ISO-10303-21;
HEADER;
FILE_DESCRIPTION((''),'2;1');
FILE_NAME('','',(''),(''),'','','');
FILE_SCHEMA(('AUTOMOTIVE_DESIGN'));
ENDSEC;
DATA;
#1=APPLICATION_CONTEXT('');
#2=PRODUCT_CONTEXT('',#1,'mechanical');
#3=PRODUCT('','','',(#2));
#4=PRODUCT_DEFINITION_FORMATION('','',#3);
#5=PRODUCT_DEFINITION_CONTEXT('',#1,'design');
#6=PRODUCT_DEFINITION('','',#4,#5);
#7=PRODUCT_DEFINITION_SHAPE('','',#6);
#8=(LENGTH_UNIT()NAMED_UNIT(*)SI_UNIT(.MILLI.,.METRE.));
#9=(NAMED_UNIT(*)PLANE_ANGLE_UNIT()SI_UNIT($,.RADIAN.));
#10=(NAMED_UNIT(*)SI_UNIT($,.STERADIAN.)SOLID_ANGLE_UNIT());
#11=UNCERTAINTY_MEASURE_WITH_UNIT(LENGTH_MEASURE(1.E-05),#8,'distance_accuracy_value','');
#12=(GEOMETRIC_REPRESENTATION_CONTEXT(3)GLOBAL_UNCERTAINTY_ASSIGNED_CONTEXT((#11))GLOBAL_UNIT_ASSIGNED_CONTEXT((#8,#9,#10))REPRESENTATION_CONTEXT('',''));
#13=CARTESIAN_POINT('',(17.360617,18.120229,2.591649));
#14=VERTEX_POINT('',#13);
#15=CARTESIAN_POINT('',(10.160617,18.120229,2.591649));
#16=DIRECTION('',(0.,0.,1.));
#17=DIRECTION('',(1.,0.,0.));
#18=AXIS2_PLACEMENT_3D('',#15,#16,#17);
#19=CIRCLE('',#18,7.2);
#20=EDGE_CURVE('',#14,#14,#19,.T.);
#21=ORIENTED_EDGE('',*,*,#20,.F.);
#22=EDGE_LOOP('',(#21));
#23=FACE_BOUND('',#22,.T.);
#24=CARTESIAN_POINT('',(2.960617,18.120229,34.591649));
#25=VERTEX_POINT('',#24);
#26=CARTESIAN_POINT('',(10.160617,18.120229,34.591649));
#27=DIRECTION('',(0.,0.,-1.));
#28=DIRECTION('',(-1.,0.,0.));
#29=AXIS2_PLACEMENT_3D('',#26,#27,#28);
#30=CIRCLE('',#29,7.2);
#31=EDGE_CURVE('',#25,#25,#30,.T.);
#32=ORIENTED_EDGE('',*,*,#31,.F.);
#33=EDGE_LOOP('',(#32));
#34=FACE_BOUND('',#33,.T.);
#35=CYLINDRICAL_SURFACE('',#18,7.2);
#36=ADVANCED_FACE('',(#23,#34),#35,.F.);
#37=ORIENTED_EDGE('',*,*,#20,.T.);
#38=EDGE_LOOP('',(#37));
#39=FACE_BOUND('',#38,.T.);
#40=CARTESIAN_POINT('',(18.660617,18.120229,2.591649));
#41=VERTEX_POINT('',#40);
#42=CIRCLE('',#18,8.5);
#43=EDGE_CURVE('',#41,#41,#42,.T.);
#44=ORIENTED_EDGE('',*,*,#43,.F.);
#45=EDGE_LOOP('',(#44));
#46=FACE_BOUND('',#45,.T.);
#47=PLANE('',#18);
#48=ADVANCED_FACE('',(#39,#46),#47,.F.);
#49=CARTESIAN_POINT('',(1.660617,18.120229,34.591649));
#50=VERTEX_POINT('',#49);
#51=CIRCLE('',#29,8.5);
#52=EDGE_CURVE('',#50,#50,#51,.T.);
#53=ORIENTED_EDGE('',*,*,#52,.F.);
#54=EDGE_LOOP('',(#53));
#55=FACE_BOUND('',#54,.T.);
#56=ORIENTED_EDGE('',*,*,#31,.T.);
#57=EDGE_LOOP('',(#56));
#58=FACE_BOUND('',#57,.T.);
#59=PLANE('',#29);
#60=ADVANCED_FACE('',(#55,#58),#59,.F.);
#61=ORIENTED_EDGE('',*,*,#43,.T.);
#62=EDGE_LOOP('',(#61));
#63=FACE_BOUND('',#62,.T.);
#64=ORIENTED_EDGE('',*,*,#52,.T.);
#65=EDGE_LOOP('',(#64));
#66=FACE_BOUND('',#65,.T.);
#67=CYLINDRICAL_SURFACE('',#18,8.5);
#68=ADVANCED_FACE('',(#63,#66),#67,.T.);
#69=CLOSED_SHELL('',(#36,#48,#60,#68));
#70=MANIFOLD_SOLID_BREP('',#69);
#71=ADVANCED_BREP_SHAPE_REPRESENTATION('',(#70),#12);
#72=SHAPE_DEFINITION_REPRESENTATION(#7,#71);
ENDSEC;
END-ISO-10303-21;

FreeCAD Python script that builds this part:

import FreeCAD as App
import Part
import Sketcher

V = App.Vector

doc = App.newDocument("Part")
body = doc.addObject("PartDesign::Body", "Body")

# Sketch on XY plane
sketch1 = body.newObject("Sketcher::SketchObject", "Sketch")
sketch1.AttachmentSupport = (doc.getObject("XY_Plane"), [""])
sketch1.MapMode = "FlatFace"
sketch1.AttachmentOffset = App.Placement(V(0, 0, 32.591649), App.Rotation())
sketch1.addGeometry(Part.Circle(V(10.160617, 18.120229, 0), V(0, 0, 1), 8.5), False)
sketch1.addGeometry(Part.Circle(V(10.160617, 18.120229, 0), V(0, 0, 1), 7.2), False)
sketch1.addConstraint(Sketcher.Constraint("Coincident", 1, 3, 0, 3))
sketch1.addConstraint(Sketcher.Constraint("Diameter", 0, 17.0))
sketch1.addConstraint(Sketcher.Constraint("Diameter", 1, 14.4))
sketch1.addConstraint(Sketcher.Constraint("DistanceY", -1, 1, 0, 3, 18.120229))
sketch1.addConstraint(Sketcher.Constraint("DistanceX", -1, 1, 0, 3, 10.160617))
pad1 = body.newObject("PartDesign::Pad", "Pad")
pad1.Profile = sketch1
pad1.Type = "TwoLengths"
pad1.Length = 2
pad1.Length2 = 30

doc.recompute()
